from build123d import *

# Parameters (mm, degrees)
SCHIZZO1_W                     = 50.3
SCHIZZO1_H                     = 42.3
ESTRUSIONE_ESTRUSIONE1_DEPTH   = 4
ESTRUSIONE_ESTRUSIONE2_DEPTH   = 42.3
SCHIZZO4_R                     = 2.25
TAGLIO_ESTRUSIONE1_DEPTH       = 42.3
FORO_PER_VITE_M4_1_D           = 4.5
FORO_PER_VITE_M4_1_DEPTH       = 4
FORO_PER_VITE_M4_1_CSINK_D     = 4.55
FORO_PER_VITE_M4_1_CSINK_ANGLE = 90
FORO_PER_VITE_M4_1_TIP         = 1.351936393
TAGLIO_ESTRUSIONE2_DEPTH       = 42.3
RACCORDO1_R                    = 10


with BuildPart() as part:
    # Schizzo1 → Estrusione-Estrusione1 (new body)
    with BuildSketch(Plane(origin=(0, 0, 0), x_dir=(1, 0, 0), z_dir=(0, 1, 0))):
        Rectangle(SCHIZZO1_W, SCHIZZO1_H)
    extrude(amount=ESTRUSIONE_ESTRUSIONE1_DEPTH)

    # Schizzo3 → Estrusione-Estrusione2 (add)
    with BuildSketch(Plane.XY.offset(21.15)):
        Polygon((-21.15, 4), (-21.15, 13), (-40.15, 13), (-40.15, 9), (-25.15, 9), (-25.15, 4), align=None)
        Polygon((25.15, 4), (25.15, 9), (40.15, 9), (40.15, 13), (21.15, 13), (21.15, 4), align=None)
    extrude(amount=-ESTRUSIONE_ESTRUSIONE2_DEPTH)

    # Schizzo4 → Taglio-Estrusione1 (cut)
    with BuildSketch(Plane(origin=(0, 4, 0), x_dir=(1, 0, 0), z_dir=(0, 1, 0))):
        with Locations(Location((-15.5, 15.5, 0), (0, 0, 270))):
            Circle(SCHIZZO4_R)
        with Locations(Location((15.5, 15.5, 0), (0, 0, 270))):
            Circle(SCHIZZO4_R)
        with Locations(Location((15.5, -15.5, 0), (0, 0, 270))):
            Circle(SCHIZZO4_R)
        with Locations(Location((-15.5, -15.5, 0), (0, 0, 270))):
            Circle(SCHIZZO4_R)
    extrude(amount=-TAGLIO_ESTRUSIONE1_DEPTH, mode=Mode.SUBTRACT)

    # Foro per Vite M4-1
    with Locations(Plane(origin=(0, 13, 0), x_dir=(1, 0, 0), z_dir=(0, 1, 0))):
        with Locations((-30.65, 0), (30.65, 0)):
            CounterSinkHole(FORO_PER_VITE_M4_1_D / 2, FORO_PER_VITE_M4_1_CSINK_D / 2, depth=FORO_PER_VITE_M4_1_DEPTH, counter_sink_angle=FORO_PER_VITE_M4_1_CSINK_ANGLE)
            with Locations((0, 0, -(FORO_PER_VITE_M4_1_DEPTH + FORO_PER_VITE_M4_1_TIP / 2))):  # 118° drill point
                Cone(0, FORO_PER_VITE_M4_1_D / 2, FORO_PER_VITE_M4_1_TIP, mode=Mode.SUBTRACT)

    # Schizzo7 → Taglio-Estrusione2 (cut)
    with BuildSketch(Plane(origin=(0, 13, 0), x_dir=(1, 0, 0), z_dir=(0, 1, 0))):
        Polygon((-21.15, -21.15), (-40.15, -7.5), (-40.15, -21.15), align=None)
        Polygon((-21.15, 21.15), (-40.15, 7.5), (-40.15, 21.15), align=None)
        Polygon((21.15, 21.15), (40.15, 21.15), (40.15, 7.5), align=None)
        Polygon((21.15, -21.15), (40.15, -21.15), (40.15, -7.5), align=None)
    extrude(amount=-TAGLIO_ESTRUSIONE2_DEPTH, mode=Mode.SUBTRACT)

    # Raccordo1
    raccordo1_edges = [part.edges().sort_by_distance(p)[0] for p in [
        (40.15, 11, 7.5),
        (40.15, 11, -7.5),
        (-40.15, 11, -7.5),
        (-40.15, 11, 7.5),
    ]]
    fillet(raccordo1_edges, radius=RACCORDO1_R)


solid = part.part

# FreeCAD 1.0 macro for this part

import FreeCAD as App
import Part
import Sketcher
from FreeCAD import Vector


def edges_at(feature, points):
    """Names of the edges that pass closest to the given points."""
    edges = feature.Shape.Edges
    near = lambda p: min(range(len(edges)), key=lambda i: edges[i].distToShape(Part.Vertex(*p))[0])
    return sorted({f"Edge{near(p) + 1}" for p in points})

doc = App.newDocument("Part")
body = doc.addObject("PartDesign::Body", "Body")

# Sketch on XZ plane
sketch1 = body.newObject("Sketcher::SketchObject", "Sketch")
sketch1.AttachmentSupport = (doc.getObject("XZ_Plane"), [""])
sketch1.MapMode = "FlatFace"
sketch1.addGeometry([
    Part.LineSegment(Vector(-25, -21, 0), Vector(-25, 21, 0)),
    Part.LineSegment(Vector(-25, 21, 0), Vector(25, 21, 0)),
    Part.LineSegment(Vector(25, 21, 0), Vector(25, -21, 0)),
    Part.LineSegment(Vector(25, -21, 0), Vector(-25, -21, 0)),
], False)
sketch1.addConstraint([
    Sketcher.Constraint("Coincident", 0, 2, 1, 1),
    Sketcher.Constraint("Coincident", 1, 2, 2, 1),
    Sketcher.Constraint("Coincident", 2, 2, 3, 1),
    Sketcher.Constraint("Coincident", 3, 2, 0, 1),
    Sketcher.Constraint("Vertical", 0),
    Sketcher.Constraint("Horizontal", 1),
    Sketcher.Constraint("Vertical", 2),
    Sketcher.Constraint("Horizontal", 3),
    Sketcher.Constraint("Symmetric", 0, 2, 2, 2, -1, 1),
    Sketcher.Constraint("DistanceX", 1, 1, 1, 2, 50.3),
    Sketcher.Constraint("DistanceY", 0, 1, 0, 2, 42.3),
])
pad1 = body.newObject("PartDesign::Pad", "Pad")
pad1.Profile = sketch1
pad1.Length = 4
pad1.Reversed = True

# Sketch on XY plane
sketch2 = body.newObject("Sketcher::SketchObject", "Sketch001")
sketch2.AttachmentSupport = (doc.getObject("XY_Plane"), [""])
sketch2.MapMode = "FlatFace"
sketch2.AttachmentOffset = App.Placement(Vector(0, 0, 21.15), App.Rotation())
sketch2.addGeometry([
    Part.LineSegment(Vector(-21.1, 4, 0), Vector(-21.1, 13, 0)),  # 0
    Part.LineSegment(Vector(-21.1, 13, 0), Vector(-40.1, 13, 0)),  # 1
    Part.LineSegment(Vector(-40.1, 13, 0), Vector(-40.1, 9, 0)),  # 2
    Part.LineSegment(Vector(-40.1, 9, 0), Vector(-25.1, 9, 0)),  # 3
    Part.LineSegment(Vector(-25.1, 9, 0), Vector(-25.1, 4, 0)),  # 4
    Part.LineSegment(Vector(-25.1, 4, 0), Vector(-21.1, 4, 0)),  # 5
    Part.LineSegment(Vector(25.1, 4, 0), Vector(25.1, 9, 0)),  # 6
    Part.LineSegment(Vector(25.1, 9, 0), Vector(40.1, 9, 0)),  # 7
    Part.LineSegment(Vector(40.1, 9, 0), Vector(40.1, 13, 0)),  # 8
    Part.LineSegment(Vector(40.1, 13, 0), Vector(21.1, 13, 0)),  # 9
    Part.LineSegment(Vector(21.1, 13, 0), Vector(21.1, 4, 0)),  # 10
    Part.LineSegment(Vector(21.1, 4, 0), Vector(25.1, 4, 0)),  # 11
], False)
sketch2.addConstraint([
    Sketcher.Constraint("Coincident", 0, 2, 1, 1),
    Sketcher.Constraint("Coincident", 1, 2, 2, 1),
    Sketcher.Constraint("Coincident", 2, 2, 3, 1),
    Sketcher.Constraint("Coincident", 3, 2, 4, 1),
    Sketcher.Constraint("Coincident", 4, 2, 5, 1),
    Sketcher.Constraint("Coincident", 5, 2, 0, 1),
    Sketcher.Constraint("Coincident", 6, 2, 7, 1),
    Sketcher.Constraint("Coincident", 7, 2, 8, 1),
    Sketcher.Constraint("Coincident", 8, 2, 9, 1),
    Sketcher.Constraint("Coincident", 9, 2, 10, 1),
    Sketcher.Constraint("Coincident", 10, 2, 11, 1),
    Sketcher.Constraint("Coincident", 11, 2, 6, 1),
    Sketcher.Constraint("Vertical", 0),
    Sketcher.Constraint("Horizontal", 1),
    Sketcher.Constraint("Vertical", 2),
    Sketcher.Constraint("Horizontal", 3),
    Sketcher.Constraint("Vertical", 4),
    Sketcher.Constraint("Horizontal", 5),
    Sketcher.Constraint("Vertical", 6),
    Sketcher.Constraint("Horizontal", 7),
    Sketcher.Constraint("Vertical", 8),
    Sketcher.Constraint("Horizontal", 9),
    Sketcher.Constraint("Vertical", 10),
    Sketcher.Constraint("Horizontal", 11),
    Sketcher.Constraint("Symmetric", 3, 2, 6, 2, -2),
    Sketcher.Constraint("Symmetric", 1, 2, 8, 2, -2),
    Sketcher.Constraint("Symmetric", 5, 2, 10, 2, -2),
    Sketcher.Constraint("Equal", 11, 2),
    Sketcher.Constraint("DistanceX", 1, 2, 1, 1, 19.0),
    Sketcher.Constraint("DistanceX", 3, 1, 3, 2, 15.0),
    Sketcher.Constraint("DistanceY", 0, 1, 0, 2, 9.0),
    Sketcher.Constraint("DistanceY", -1, 1, 0, 2, 13.0),
    Sketcher.Constraint("DistanceX", 0, 2, 6, 2, 46.3),
])
pad2 = body.newObject("PartDesign::Pad", "Pad001")
pad2.Profile = sketch2
pad2.Length = 42.3
pad2.Reversed = True

# Sketch on XZ plane
sketch3 = body.newObject("Sketcher::SketchObject", "Sketch002")
sketch3.AttachmentSupport = (doc.getObject("XZ_Plane"), [""])
sketch3.MapMode = "FlatFace"
sketch3.AttachmentOffset = App.Placement(Vector(0, 0, -4), App.Rotation())
sketch3.addGeometry([
    Part.Circle(Vector(-15.5, -15.5, 0), Vector(0, 0, 1), 2.2),
    Part.Circle(Vector(15.5, -15.5, 0), Vector(0, 0, 1), 2.2),
    Part.Circle(Vector(15.5, 15.5, 0), Vector(0, 0, 1), 2.2),
    Part.Circle(Vector(-15.5, 15.5, 0), Vector(0, 0, 1), 2.2),
], False)
sketch3.addConstraint([
    Sketcher.Constraint("Equal", 0, 1),
    Sketcher.Constraint("Equal", 1, 2),
    Sketcher.Constraint("Equal", 2, 3),
    Sketcher.Constraint("Symmetric", 0, 3, 2, 3, -1, 1),
    Sketcher.Constraint("Symmetric", 1, 3, 3, 3, -1, 1),
    Sketcher.Constraint("Symmetric", 0, 3, 1, 3, -2),
    Sketcher.Constraint("Diameter", 0, 4.5),
    Sketcher.Constraint("DistanceX", 0, 3, 1, 3, 31.0),
    Sketcher.Constraint("DistanceY", 1, 3, 2, 3, 31.0),
])
pocket1 = body.newObject("PartDesign::Pocket", "Pocket")
pocket1.Profile = sketch3
pocket1.Length = 42.3
pocket1.Reversed = True

# Sketch on XZ plane
sketch4 = body.newObject("Sketcher::SketchObject", "Sketch003")
sketch4.AttachmentSupport = (doc.getObject("XZ_Plane"), [""])
sketch4.MapMode = "FlatFace"
sketch4.AttachmentOffset = App.Placement(Vector(0, 0, -13), App.Rotation())
sketch4.addGeometry([
    Part.Circle(Vector(-30.6, 0, 0), Vector(0, 0, 1), 2.2),
    Part.Circle(Vector(30.6, 0, 0), Vector(0, 0, 1), 2.2),
], False)
sketch4.addConstraint([
    Sketcher.Constraint("Equal", 0, 1),
    Sketcher.Constraint("Symmetric", 0, 3, 1, 3, -1, 1),
    Sketcher.Constraint("PointOnObject", 0, 3, -1),
    Sketcher.Constraint("Diameter", 0, 4.5),
    Sketcher.Constraint("DistanceX", 0, 3, 1, 3, 61.3),
])
doc.recompute()
hole = body.newObject("PartDesign::Hole", "Hole")
hole.Profile = sketch4
hole.ThreadType = "None"
hole.Diameter = 4.5
hole.DepthType = "Dimension"
hole.Depth = 4
hole.DrillPoint = "Angled"
hole.DrillPointAngle = 118
hole.HoleCutType = "Countersink"
hole.HoleCutDiameter = 4.55
hole.HoleCutCountersinkAngle = 90
hole.Reversed = True

# Sketch on XZ plane
sketch5 = body.newObject("Sketcher::SketchObject", "Sketch004")
sketch5.AttachmentSupport = (doc.getObject("XZ_Plane"), [""])
sketch5.MapMode = "FlatFace"
sketch5.AttachmentOffset = App.Placement(Vector(0, 0, -13), App.Rotation())
sketch5.addGeometry([
    Part.LineSegment(Vector(-21, 21, 0), Vector(-40, 8, 0)),  # 0
    Part.LineSegment(Vector(-40, 8, 0), Vector(-40, 21, 0)),  # 1
    Part.LineSegment(Vector(-40, 21, 0), Vector(-21, 21, 0)),  # 2
    Part.LineSegment(Vector(-40, -8, 0), Vector(-21, -21, 0)),  # 3
    Part.LineSegment(Vector(-21, -21, 0), Vector(-40, -21, 0)),  # 4
    Part.LineSegment(Vector(-40, -21, 0), Vector(-40, -8, 0)),  # 5
    Part.LineSegment(Vector(40, -21, 0), Vector(21, -21, 0)),  # 6
    Part.LineSegment(Vector(21, -21, 0), Vector(40, -8, 0)),  # 7
    Part.LineSegment(Vector(40, -8, 0), Vector(40, -21, 0)),  # 8
    Part.LineSegment(Vector(21, 21, 0), Vector(40, 21, 0)),  # 9
    Part.LineSegment(Vector(40, 21, 0), Vector(40, 8, 0)),  # 10
    Part.LineSegment(Vector(40, 8, 0), Vector(21, 21, 0)),  # 11
], False)
sketch5.addConstraint([
    Sketcher.Constraint("Coincident", 0, 2, 1, 1),
    Sketcher.Constraint("Coincident", 1, 2, 2, 1),
    Sketcher.Constraint("Coincident", 2, 2, 0, 1),
    Sketcher.Constraint("Coincident", 3, 2, 4, 1),
    Sketcher.Constraint("Coincident", 4, 2, 5, 1),
    Sketcher.Constraint("Coincident", 5, 2, 3, 1),
    Sketcher.Constraint("Coincident", 6, 2, 7, 1),
    Sketcher.Constraint("Coincident", 7, 2, 8, 1),
    Sketcher.Constraint("Coincident", 8, 2, 6, 1),
    Sketcher.Constraint("Coincident", 9, 2, 10, 1),
    Sketcher.Constraint("Coincident", 10, 2, 11, 1),
    Sketcher.Constraint("Coincident", 11, 2, 9, 1),
    Sketcher.Constraint("Vertical", 1),
    Sketcher.Constraint("Horizontal", 2),
    Sketcher.Constraint("Horizontal", 4),
    Sketcher.Constraint("Vertical", 5),
    Sketcher.Constraint("Horizontal", 6),
    Sketcher.Constraint("Vertical", 8),
    Sketcher.Constraint("Horizontal", 9),
    Sketcher.Constraint("Vertical", 10),
    Sketcher.Constraint("Symmetric", 2, 2, 6, 2, -1, 1),
    Sketcher.Constraint("Symmetric", 0, 2, 7, 2, -1, 1),
    Sketcher.Constraint("Symmetric", 4, 2, 9, 2, -1, 1),
    Sketcher.Constraint("Symmetric", 3, 2, 6, 2, -2),
    Sketcher.Constraint("Symmetric", 5, 2, 7, 2, -2),
    Sketcher.Constraint("Parallel", 3, 11),
    Sketcher.Constraint("Horizontal", 0, 2, 10, 2),
    Sketcher.Constraint("DistanceX", 2, 1, 2, 2, 19.0),
    Sketcher.Constraint("DistanceY", 5, 2, 0, 2, 15.0),
    Sketcher.Constraint("DistanceY", 1, 1, 1, 2, 13.65),
    Sketcher.Constraint("DistanceX", 3, 2, 6, 2, 42.3),
])
pocket2 = body.newObject("PartDesign::Pocket", "Pocket001")
pocket2.Profile = sketch5
pocket2.Length = 42.3
pocket2.Reversed = True
doc.recompute()

fillet = body.newObject("PartDesign::Fillet", "Fillet")
fillet.Base = (pocket2, edges_at(pocket2, [
    (40.15, 11, 7.5),
    (40.15, 11, -7.5),
    (-40.15, 11, -7.5),
    (-40.15, 11, 7.5),
]))
fillet.Radius = 10

doc.recompute()
